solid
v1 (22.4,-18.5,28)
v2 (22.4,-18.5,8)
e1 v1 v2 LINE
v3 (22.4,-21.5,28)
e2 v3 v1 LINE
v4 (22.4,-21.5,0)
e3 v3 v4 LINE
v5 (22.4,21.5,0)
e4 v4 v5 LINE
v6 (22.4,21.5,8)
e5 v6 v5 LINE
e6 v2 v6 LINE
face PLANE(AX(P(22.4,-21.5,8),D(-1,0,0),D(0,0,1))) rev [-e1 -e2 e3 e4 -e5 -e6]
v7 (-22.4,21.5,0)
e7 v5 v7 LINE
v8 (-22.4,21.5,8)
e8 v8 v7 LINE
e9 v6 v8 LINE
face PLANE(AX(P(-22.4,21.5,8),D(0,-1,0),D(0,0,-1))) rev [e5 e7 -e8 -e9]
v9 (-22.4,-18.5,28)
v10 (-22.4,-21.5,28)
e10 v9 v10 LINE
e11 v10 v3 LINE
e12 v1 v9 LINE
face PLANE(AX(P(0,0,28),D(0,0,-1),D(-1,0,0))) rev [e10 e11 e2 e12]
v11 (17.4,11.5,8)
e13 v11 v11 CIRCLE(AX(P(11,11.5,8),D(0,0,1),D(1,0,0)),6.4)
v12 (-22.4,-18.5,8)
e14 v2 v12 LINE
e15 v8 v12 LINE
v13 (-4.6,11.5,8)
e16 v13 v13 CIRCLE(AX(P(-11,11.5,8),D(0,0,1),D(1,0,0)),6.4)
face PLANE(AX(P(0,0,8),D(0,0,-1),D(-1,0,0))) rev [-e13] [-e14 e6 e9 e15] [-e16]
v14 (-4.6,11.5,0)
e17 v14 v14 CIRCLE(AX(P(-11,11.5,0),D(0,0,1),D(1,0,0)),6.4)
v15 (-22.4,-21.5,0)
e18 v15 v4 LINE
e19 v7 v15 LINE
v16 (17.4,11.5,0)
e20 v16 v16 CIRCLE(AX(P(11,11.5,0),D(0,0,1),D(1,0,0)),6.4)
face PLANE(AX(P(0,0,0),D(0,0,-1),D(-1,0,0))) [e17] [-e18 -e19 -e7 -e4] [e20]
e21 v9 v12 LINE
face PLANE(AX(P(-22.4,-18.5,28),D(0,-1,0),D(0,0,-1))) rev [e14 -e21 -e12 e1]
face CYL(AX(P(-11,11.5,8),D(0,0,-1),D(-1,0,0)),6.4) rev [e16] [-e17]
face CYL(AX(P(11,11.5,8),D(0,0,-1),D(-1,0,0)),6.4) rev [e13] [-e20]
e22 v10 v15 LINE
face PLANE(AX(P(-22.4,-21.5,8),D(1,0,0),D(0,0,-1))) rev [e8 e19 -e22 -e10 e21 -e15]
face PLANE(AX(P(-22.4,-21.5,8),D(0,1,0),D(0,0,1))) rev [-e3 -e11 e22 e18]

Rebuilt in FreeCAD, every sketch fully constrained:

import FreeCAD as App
import Part
import Sketcher

V = App.Vector

doc = App.newDocument("Part")
body = doc.addObject("PartDesign::Body", "Body")

# Sketch on XY plane
sketch1 = body.newObject("Sketcher::SketchObject", "Sketch")
sketch1.AttachmentSupport = (doc.getObject("XY_Plane"), [""])
sketch1.MapMode = "FlatFace"
sketch1.addGeometry([
    Part.LineSegment(V(-22.4, 21.5, 0), V(-22.4, -21.5, 0)),  # 0
    Part.LineSegment(V(-22.4, -21.5, 0), V(22.4, -21.5, 0)),  # 1
    Part.LineSegment(V(22.4, -21.5, 0), V(22.4, 21.5, 0)),  # 2
    Part.LineSegment(V(22.4, 21.5, 0), V(-22.4, 21.5, 0)),  # 3
    Part.Circle(V(-11, 11.5, 0), V(0, 0, 1), 6.4),  # 4
    Part.Circle(V(11, 11.5, 0), V(0, 0, 1), 6.4),  # 5
], False)
sketch1.addConstraint([
    Sketcher.Constraint("Coincident", 0, 2, 1, 1),
    Sketcher.Constraint("Coincident", 1, 2, 2, 1),
    Sketcher.Constraint("Coincident", 2, 2, 3, 1),
    Sketcher.Constraint("Coincident", 3, 2, 0, 1),
    Sketcher.Constraint("Vertical", 0),
    Sketcher.Constraint("Horizontal", 1),
    Sketcher.Constraint("Vertical", 2),
    Sketcher.Constraint("Horizontal", 3),
    Sketcher.Constraint("Equal", 4, 5),
    Sketcher.Constraint("Symmetric", 0, 2, 2, 2, -1, 1),
    Sketcher.Constraint("Symmetric", 4, 3, 5, 3, -2),
    Sketcher.Constraint("Diameter", 4, 12.8),
    Sketcher.Constraint("DistanceY", 0, 2, 0, 1, 43.0),
    Sketcher.Constraint("DistanceX", 1, 1, 1, 2, 44.8),
    Sketcher.Constraint("DistanceX", 4, 3, -1, 1, 11.0),
    Sketcher.Constraint("DistanceY", 0, 2, 4, 3, 33.0),
])
pad1 = body.newObject("PartDesign::Pad", "Pad")
pad1.Profile = sketch1
pad1.Length = 8

# Sketch on XY plane
sketch2 = body.newObject("Sketcher::SketchObject", "Sketch001")
sketch2.AttachmentSupport = (doc.getObject("XY_Plane"), [""])
sketch2.MapMode = "FlatFace"
sketch2.AttachmentOffset = App.Placement(V(0, 0, 8), App.Rotation())
sketch2.addGeometry([
    Part.LineSegment(V(-22.4, -18.5, 0), V(-22.4, -21.5, 0)),
    Part.LineSegment(V(-22.4, -21.5, 0), V(22.4, -21.5, 0)),
    Part.LineSegment(V(22.4, -21.5, 0), V(22.4, -18.5, 0)),
    Part.LineSegment(V(22.4, -18.5, 0), V(-22.4, -18.5, 0)),
], False)
sketch2.addConstraint([
    Sketcher.Constraint("Coincident", 0, 2, 1, 1),
    Sketcher.Constraint("Coincident", 1, 2, 2, 1),
    Sketcher.Constraint("Coincident", 2, 2, 3, 1),
    Sketcher.Constraint("Coincident", 3, 2, 0, 1),
    Sketcher.Constraint("Vertical", 0),
    Sketcher.Constraint("Horizontal", 1),
    Sketcher.Constraint("Vertical", 2),
    Sketcher.Constraint("Horizontal", 3),
    Sketcher.Constraint("DistanceY", 0, 2, 0, 1, 3.0),
    Sketcher.Constraint("DistanceX", 1, 1, 1, 2, 44.8),
    Sketcher.Constraint("DistanceX", 0, 2, -1, 1, 22.4),
    Sketcher.Constraint("DistanceY", 0, 2, -1, 1, 21.5),
])
pad2 = body.newObject("PartDesign::Pad", "Pad001")
pad2.Profile = sketch2
pad2.Length = 20

doc.recompute()
